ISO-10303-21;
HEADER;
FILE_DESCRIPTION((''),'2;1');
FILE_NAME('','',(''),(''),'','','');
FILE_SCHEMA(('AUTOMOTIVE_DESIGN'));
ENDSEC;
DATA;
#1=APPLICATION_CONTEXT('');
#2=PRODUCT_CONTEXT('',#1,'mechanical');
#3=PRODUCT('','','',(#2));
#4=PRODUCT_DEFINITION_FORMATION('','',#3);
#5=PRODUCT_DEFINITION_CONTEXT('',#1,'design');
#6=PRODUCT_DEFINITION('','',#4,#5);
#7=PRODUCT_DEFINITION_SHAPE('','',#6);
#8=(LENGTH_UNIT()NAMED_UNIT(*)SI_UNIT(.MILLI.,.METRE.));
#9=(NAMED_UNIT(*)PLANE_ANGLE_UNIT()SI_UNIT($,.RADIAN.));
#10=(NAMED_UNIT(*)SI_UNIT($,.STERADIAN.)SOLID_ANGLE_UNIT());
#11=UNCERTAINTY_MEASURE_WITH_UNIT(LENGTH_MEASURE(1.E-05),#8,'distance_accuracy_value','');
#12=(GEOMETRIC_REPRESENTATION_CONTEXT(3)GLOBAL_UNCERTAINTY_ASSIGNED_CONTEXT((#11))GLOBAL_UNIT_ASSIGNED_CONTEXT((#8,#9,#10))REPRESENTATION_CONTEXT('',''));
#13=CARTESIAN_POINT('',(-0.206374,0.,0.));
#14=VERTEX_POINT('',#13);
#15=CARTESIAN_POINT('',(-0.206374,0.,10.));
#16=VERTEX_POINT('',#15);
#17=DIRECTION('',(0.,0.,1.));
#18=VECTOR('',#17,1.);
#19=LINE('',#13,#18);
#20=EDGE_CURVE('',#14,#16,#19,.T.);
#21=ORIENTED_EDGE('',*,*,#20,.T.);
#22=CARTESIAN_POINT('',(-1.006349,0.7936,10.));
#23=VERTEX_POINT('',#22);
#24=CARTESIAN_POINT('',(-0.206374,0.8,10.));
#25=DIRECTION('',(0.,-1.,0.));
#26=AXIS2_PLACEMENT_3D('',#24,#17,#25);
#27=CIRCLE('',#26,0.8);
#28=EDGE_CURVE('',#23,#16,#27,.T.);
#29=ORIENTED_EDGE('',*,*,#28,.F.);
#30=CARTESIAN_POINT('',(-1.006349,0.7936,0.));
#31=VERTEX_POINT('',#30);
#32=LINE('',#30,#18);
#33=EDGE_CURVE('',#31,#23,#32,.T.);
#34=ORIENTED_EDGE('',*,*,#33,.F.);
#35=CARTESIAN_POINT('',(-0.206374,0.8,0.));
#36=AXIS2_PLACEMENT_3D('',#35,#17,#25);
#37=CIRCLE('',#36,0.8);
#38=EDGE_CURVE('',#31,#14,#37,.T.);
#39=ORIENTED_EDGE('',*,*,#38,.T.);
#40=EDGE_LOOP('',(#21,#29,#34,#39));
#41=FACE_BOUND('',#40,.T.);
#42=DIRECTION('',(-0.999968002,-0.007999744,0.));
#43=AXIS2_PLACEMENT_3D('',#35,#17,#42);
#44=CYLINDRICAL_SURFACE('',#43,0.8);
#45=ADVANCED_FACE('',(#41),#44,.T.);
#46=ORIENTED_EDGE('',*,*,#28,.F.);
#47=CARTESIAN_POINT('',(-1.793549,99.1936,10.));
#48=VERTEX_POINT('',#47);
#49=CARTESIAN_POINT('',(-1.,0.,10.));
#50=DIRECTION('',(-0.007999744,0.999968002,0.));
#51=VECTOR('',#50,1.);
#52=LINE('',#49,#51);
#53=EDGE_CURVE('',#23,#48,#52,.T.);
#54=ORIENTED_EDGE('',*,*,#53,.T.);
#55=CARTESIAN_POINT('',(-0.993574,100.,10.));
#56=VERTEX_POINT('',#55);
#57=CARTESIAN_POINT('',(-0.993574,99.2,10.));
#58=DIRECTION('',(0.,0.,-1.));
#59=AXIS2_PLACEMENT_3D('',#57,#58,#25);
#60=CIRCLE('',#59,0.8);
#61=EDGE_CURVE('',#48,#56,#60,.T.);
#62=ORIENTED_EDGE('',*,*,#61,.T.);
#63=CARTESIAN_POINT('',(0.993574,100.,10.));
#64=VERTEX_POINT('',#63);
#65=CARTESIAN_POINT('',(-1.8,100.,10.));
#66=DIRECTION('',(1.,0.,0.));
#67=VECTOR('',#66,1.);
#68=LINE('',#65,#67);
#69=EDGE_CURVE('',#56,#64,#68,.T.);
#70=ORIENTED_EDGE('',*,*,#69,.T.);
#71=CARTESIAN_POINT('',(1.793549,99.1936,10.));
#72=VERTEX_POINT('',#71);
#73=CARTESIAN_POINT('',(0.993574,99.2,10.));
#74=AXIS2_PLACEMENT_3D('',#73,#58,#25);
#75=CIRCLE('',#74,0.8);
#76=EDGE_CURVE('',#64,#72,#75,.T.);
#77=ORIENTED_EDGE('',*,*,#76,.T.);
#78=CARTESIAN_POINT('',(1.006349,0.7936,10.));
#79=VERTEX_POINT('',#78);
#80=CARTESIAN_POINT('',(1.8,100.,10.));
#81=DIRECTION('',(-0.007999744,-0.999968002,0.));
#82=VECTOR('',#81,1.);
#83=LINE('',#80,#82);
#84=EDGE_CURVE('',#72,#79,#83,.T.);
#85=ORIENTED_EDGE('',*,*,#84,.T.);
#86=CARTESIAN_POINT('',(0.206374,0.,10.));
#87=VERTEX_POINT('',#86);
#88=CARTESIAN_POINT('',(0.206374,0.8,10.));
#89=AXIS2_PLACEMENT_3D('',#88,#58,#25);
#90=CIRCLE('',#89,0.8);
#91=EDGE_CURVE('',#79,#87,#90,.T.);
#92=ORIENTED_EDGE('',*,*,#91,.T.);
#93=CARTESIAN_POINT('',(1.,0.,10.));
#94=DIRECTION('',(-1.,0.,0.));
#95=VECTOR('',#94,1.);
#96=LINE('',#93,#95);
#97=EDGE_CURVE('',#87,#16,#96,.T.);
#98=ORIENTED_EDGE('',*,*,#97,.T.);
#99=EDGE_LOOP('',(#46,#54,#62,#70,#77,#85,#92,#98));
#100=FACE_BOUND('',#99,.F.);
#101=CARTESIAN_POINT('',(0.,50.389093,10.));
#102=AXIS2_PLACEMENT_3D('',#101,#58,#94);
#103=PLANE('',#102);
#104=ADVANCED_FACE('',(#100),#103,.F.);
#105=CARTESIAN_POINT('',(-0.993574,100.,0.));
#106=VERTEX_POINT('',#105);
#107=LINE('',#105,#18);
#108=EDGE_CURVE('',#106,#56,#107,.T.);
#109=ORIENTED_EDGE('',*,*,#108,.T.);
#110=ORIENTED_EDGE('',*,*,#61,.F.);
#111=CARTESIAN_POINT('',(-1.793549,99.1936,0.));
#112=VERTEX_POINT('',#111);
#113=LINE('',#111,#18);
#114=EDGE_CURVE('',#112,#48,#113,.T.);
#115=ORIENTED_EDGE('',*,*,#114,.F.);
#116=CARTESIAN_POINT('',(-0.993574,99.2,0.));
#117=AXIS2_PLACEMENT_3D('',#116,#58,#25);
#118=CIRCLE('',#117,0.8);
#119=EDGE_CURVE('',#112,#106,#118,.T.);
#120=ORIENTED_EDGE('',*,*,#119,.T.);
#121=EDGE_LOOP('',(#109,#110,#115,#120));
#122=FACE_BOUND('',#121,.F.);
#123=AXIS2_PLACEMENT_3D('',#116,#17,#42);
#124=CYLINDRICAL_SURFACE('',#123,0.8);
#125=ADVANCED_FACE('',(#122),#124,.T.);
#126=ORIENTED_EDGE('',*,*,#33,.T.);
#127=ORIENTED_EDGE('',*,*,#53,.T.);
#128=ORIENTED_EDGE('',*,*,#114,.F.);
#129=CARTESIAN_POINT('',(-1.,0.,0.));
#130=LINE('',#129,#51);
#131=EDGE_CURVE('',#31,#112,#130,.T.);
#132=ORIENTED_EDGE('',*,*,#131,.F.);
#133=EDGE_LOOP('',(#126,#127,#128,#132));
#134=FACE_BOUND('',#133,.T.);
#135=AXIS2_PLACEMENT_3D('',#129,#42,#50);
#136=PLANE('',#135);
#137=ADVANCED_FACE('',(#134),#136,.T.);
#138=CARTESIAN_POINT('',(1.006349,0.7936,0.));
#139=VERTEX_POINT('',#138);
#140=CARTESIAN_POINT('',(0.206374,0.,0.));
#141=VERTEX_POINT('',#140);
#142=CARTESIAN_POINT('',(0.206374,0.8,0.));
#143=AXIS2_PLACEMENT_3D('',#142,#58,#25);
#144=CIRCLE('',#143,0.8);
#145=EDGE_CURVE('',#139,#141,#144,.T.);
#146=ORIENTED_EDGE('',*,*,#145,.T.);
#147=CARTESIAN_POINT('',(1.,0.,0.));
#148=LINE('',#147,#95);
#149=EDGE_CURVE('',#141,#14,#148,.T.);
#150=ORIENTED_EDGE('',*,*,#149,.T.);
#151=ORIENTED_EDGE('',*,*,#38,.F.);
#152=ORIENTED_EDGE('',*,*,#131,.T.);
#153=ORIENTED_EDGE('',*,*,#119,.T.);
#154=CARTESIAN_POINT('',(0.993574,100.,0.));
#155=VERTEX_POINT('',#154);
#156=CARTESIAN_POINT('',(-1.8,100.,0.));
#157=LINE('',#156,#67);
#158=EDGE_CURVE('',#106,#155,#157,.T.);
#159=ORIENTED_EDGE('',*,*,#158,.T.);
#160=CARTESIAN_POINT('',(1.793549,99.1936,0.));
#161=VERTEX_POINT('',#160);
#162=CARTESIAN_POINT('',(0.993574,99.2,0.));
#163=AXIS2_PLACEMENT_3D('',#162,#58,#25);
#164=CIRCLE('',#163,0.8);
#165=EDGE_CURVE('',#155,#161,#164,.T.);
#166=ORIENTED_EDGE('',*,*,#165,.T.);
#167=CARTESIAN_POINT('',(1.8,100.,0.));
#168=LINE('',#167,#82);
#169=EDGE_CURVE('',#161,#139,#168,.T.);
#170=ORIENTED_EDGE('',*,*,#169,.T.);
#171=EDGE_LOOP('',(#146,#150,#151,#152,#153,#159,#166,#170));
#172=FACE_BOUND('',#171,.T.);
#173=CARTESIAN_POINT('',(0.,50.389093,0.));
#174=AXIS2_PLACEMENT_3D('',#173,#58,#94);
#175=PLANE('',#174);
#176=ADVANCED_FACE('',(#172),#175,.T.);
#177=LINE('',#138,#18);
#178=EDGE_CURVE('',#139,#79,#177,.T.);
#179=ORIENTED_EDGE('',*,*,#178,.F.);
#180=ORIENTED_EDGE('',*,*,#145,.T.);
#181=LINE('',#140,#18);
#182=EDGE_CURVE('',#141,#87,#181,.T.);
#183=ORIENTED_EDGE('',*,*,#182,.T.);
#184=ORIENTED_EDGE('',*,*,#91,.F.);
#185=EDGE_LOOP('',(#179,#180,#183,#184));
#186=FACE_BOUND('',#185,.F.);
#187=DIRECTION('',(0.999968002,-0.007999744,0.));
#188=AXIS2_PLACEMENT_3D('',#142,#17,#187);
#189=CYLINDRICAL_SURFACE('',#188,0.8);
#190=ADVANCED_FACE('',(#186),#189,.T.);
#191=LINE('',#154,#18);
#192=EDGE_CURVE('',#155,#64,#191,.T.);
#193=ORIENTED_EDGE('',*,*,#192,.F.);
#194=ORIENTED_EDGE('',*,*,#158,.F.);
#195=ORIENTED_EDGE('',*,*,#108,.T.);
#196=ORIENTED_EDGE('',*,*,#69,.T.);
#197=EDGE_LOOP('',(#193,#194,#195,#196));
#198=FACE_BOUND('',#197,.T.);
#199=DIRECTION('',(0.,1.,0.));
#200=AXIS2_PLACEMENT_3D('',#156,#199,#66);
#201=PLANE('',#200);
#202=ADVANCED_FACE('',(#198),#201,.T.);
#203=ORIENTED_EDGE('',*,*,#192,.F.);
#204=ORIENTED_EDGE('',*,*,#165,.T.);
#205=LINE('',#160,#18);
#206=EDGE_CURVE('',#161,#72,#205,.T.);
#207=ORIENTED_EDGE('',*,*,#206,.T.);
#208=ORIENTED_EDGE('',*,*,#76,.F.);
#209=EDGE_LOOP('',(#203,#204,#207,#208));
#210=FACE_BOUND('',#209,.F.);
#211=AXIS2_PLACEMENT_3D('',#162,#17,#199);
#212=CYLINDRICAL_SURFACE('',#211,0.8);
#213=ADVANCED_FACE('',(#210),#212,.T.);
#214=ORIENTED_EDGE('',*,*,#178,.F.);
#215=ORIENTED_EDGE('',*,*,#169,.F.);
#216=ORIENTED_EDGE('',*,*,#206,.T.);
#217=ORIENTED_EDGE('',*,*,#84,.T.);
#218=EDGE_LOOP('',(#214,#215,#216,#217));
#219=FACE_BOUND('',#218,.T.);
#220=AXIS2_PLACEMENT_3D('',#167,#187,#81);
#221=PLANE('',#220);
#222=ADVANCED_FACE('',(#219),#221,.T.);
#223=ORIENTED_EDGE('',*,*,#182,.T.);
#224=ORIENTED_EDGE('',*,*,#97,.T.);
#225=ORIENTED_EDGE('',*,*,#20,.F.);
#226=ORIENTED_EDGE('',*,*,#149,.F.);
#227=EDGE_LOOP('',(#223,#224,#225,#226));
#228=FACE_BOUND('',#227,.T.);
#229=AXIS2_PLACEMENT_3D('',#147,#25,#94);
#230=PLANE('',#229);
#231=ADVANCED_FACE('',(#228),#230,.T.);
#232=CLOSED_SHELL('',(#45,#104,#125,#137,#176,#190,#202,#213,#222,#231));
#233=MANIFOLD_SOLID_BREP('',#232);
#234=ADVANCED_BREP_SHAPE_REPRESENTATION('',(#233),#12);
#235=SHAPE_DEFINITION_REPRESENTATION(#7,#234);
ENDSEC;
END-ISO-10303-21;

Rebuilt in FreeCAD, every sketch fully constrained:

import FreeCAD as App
import Part
import Sketcher

V = App.Vector
Q = App.Units.Quantity


def edges_at(feature, points):
    """Names of the edges that pass closest to the given points."""
    edges = feature.Shape.Edges
    near = lambda p: min(range(len(edges)), key=lambda i: edges[i].distToShape(Part.Vertex(*p))[0])
    return sorted({f"Edge{near(p) + 1}" for p in points})

doc = App.newDocument("Part")
body = doc.addObject("PartDesign::Body", "Body")

sketch1 = body.newObject("Sketcher::SketchObject", "Sketch")
sketch1.AttachmentSupport = (doc.getObject("XY_Plane"), [""])
sketch1.MapMode = "FlatFace"
sketch1.addGeometry([
    Part.LineSegment(V(-1.8, 100, 0), V(-1, 0, 0)),
    Part.LineSegment(V(-1, 0, 0), V(1, 0, 0)),
    Part.LineSegment(V(1, 0, 0), V(1.8, 100, 0)),
    Part.LineSegment(V(1.8, 100, 0), V(-1.8, 100, 0)),
], False)
sketch1.addConstraint([
    Sketcher.Constraint("Coincident", 0, 2, 1, 1),
    Sketcher.Constraint("Coincident", 1, 2, 2, 1),
    Sketcher.Constraint("Coincident", 2, 2, 3, 1),
    Sketcher.Constraint("Coincident", 3, 2, 0, 1),
    Sketcher.Constraint("Horizontal", 1),
    Sketcher.Constraint("Horizontal", 3),
    Sketcher.Constraint("Symmetric", 0, 2, 1, 2, -1, 1),
    Sketcher.Constraint("Equal", 0, 2),
    Sketcher.Constraint("DistanceX", 1, 1, 1, 2, Q("2 mm")),
    Sketcher.Constraint("DistanceX", 3, 2, 3, 1, Q("3.6 mm")),
    Sketcher.Constraint("DistanceY", -1, 1, 2, 2, Q("100 mm")),
])
pad1 = body.newObject("PartDesign::Pad", "Pad")
pad1.Profile = sketch1
pad1.Length = 10
doc.recompute()

fillet = body.newObject("PartDesign::Fillet", "Fillet")
fillet.Base = (pad1, edges_at(pad1, [
    (-1.8, 100, 5),
    (1.8, 100, 5),
    (-1, 0, 5),
    (1, 0, 5),
]))
fillet.Radius = 0.8

doc.recompute()
